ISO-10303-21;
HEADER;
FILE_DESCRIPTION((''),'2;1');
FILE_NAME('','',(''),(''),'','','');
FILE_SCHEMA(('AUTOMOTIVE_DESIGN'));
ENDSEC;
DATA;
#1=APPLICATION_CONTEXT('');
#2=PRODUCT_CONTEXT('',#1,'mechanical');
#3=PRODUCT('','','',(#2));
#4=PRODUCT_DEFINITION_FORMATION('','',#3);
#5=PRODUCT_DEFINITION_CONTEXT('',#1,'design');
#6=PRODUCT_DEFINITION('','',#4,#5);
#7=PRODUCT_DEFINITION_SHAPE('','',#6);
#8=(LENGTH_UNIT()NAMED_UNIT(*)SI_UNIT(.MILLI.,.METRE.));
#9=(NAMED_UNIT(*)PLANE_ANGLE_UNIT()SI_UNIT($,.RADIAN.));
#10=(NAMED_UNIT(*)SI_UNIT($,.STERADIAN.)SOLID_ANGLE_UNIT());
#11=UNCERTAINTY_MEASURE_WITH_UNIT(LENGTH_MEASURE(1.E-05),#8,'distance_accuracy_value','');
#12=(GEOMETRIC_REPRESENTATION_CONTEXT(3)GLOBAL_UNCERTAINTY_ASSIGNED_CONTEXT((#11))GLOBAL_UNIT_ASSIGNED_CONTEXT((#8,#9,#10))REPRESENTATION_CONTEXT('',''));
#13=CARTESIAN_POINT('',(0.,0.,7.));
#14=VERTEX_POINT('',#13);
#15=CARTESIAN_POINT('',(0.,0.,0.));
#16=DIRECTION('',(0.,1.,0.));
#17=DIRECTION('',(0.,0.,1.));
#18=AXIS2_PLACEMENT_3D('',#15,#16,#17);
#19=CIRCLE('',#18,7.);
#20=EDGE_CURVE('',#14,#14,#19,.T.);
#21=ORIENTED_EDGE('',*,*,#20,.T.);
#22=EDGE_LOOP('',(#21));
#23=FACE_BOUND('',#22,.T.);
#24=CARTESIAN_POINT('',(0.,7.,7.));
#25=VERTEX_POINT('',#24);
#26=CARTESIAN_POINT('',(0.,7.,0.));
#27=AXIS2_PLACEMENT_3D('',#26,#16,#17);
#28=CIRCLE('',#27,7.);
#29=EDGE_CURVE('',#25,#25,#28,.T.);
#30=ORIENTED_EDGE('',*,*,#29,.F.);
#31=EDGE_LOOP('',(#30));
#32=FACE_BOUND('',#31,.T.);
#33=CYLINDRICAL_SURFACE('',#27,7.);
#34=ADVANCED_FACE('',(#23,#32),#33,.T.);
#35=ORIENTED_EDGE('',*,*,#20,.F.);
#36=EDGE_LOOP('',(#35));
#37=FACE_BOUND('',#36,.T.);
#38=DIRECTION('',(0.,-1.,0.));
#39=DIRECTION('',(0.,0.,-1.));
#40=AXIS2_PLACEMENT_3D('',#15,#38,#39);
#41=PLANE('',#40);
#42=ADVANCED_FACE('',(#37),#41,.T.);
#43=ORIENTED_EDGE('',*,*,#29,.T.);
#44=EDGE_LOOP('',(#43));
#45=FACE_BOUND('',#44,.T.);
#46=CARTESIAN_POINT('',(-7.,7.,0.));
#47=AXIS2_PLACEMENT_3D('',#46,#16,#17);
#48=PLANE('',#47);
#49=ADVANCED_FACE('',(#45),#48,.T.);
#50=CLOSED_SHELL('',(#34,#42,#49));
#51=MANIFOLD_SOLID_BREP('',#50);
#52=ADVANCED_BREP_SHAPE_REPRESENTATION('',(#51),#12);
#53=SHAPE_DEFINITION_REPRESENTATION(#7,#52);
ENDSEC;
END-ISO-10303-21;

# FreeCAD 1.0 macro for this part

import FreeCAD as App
import Part
import Sketcher
from FreeCAD import Vector

doc = App.newDocument("Part")
params = doc.addObject("Spreadsheet::Sheet", "Params")
for row, (alias, value) in enumerate([
    ("sketch1_width", "7 mm"),
    ("revolution_angle", "360 deg"),
], start=1):
    params.set(f"A{row}", alias)
    params.set(f"B{row}", "=" + value)
    params.setAlias(f"B{row}", alias)

body = doc.addObject("PartDesign::Body", "Body")

# Sketch on XY plane
sketch1 = body.newObject("Sketcher::SketchObject", "Sketch")
sketch1.AttachmentSupport = (doc.getObject("XY_Plane"), [""])
sketch1.MapMode = "FlatFace"
sketch1.addGeometry(Part.LineSegment(Vector(-7, 7, 0), Vector(-7, 0, 0)), False)
sketch1.addGeometry(Part.LineSegment(Vector(-7, 0, 0), Vector(0, 0, 0)), False)
sketch1.addGeometry(Part.LineSegment(Vector(0, 0, 0), Vector(0, 7, 0)), False)
sketch1.addGeometry(Part.LineSegment(Vector(0, 7, 0), Vector(-7, 7, 0)), False)
sketch1.addConstraint(Sketcher.Constraint("Coincident", 0, 2, 1, 1))
sketch1.addConstraint(Sketcher.Constraint("Coincident", 1, 2, 2, 1))
sketch1.addConstraint(Sketcher.Constraint("Coincident", 2, 2, 3, 1))
sketch1.addConstraint(Sketcher.Constraint("Coincident", 3, 2, 0, 1))
sketch1.addConstraint(Sketcher.Constraint("Vertical", 0))
sketch1.addConstraint(Sketcher.Constraint("Horizontal", 1))
sketch1.addConstraint(Sketcher.Constraint("Vertical", 2))
sketch1.addConstraint(Sketcher.Constraint("Horizontal", 3))
sketch1.addConstraint(Sketcher.Constraint("Coincident", 1, 2, -1, 1))
sketch1.addConstraint(Sketcher.Constraint("Equal", 3, 0))
sketch1.addConstraint(Sketcher.Constraint("DistanceX", 1, 1, 1, 2, 7.0))
sketch1.setExpression("Constraints[10]", "Params.sketch1_width")
revolution = body.newObject("PartDesign::Revolution", "Revolution")
revolution.Profile = sketch1
revolution.ReferenceAxis = (sketch1, ["V_Axis"])
revolution.setExpression("Angle", "Params.revolution_angle")

doc.recompute()
